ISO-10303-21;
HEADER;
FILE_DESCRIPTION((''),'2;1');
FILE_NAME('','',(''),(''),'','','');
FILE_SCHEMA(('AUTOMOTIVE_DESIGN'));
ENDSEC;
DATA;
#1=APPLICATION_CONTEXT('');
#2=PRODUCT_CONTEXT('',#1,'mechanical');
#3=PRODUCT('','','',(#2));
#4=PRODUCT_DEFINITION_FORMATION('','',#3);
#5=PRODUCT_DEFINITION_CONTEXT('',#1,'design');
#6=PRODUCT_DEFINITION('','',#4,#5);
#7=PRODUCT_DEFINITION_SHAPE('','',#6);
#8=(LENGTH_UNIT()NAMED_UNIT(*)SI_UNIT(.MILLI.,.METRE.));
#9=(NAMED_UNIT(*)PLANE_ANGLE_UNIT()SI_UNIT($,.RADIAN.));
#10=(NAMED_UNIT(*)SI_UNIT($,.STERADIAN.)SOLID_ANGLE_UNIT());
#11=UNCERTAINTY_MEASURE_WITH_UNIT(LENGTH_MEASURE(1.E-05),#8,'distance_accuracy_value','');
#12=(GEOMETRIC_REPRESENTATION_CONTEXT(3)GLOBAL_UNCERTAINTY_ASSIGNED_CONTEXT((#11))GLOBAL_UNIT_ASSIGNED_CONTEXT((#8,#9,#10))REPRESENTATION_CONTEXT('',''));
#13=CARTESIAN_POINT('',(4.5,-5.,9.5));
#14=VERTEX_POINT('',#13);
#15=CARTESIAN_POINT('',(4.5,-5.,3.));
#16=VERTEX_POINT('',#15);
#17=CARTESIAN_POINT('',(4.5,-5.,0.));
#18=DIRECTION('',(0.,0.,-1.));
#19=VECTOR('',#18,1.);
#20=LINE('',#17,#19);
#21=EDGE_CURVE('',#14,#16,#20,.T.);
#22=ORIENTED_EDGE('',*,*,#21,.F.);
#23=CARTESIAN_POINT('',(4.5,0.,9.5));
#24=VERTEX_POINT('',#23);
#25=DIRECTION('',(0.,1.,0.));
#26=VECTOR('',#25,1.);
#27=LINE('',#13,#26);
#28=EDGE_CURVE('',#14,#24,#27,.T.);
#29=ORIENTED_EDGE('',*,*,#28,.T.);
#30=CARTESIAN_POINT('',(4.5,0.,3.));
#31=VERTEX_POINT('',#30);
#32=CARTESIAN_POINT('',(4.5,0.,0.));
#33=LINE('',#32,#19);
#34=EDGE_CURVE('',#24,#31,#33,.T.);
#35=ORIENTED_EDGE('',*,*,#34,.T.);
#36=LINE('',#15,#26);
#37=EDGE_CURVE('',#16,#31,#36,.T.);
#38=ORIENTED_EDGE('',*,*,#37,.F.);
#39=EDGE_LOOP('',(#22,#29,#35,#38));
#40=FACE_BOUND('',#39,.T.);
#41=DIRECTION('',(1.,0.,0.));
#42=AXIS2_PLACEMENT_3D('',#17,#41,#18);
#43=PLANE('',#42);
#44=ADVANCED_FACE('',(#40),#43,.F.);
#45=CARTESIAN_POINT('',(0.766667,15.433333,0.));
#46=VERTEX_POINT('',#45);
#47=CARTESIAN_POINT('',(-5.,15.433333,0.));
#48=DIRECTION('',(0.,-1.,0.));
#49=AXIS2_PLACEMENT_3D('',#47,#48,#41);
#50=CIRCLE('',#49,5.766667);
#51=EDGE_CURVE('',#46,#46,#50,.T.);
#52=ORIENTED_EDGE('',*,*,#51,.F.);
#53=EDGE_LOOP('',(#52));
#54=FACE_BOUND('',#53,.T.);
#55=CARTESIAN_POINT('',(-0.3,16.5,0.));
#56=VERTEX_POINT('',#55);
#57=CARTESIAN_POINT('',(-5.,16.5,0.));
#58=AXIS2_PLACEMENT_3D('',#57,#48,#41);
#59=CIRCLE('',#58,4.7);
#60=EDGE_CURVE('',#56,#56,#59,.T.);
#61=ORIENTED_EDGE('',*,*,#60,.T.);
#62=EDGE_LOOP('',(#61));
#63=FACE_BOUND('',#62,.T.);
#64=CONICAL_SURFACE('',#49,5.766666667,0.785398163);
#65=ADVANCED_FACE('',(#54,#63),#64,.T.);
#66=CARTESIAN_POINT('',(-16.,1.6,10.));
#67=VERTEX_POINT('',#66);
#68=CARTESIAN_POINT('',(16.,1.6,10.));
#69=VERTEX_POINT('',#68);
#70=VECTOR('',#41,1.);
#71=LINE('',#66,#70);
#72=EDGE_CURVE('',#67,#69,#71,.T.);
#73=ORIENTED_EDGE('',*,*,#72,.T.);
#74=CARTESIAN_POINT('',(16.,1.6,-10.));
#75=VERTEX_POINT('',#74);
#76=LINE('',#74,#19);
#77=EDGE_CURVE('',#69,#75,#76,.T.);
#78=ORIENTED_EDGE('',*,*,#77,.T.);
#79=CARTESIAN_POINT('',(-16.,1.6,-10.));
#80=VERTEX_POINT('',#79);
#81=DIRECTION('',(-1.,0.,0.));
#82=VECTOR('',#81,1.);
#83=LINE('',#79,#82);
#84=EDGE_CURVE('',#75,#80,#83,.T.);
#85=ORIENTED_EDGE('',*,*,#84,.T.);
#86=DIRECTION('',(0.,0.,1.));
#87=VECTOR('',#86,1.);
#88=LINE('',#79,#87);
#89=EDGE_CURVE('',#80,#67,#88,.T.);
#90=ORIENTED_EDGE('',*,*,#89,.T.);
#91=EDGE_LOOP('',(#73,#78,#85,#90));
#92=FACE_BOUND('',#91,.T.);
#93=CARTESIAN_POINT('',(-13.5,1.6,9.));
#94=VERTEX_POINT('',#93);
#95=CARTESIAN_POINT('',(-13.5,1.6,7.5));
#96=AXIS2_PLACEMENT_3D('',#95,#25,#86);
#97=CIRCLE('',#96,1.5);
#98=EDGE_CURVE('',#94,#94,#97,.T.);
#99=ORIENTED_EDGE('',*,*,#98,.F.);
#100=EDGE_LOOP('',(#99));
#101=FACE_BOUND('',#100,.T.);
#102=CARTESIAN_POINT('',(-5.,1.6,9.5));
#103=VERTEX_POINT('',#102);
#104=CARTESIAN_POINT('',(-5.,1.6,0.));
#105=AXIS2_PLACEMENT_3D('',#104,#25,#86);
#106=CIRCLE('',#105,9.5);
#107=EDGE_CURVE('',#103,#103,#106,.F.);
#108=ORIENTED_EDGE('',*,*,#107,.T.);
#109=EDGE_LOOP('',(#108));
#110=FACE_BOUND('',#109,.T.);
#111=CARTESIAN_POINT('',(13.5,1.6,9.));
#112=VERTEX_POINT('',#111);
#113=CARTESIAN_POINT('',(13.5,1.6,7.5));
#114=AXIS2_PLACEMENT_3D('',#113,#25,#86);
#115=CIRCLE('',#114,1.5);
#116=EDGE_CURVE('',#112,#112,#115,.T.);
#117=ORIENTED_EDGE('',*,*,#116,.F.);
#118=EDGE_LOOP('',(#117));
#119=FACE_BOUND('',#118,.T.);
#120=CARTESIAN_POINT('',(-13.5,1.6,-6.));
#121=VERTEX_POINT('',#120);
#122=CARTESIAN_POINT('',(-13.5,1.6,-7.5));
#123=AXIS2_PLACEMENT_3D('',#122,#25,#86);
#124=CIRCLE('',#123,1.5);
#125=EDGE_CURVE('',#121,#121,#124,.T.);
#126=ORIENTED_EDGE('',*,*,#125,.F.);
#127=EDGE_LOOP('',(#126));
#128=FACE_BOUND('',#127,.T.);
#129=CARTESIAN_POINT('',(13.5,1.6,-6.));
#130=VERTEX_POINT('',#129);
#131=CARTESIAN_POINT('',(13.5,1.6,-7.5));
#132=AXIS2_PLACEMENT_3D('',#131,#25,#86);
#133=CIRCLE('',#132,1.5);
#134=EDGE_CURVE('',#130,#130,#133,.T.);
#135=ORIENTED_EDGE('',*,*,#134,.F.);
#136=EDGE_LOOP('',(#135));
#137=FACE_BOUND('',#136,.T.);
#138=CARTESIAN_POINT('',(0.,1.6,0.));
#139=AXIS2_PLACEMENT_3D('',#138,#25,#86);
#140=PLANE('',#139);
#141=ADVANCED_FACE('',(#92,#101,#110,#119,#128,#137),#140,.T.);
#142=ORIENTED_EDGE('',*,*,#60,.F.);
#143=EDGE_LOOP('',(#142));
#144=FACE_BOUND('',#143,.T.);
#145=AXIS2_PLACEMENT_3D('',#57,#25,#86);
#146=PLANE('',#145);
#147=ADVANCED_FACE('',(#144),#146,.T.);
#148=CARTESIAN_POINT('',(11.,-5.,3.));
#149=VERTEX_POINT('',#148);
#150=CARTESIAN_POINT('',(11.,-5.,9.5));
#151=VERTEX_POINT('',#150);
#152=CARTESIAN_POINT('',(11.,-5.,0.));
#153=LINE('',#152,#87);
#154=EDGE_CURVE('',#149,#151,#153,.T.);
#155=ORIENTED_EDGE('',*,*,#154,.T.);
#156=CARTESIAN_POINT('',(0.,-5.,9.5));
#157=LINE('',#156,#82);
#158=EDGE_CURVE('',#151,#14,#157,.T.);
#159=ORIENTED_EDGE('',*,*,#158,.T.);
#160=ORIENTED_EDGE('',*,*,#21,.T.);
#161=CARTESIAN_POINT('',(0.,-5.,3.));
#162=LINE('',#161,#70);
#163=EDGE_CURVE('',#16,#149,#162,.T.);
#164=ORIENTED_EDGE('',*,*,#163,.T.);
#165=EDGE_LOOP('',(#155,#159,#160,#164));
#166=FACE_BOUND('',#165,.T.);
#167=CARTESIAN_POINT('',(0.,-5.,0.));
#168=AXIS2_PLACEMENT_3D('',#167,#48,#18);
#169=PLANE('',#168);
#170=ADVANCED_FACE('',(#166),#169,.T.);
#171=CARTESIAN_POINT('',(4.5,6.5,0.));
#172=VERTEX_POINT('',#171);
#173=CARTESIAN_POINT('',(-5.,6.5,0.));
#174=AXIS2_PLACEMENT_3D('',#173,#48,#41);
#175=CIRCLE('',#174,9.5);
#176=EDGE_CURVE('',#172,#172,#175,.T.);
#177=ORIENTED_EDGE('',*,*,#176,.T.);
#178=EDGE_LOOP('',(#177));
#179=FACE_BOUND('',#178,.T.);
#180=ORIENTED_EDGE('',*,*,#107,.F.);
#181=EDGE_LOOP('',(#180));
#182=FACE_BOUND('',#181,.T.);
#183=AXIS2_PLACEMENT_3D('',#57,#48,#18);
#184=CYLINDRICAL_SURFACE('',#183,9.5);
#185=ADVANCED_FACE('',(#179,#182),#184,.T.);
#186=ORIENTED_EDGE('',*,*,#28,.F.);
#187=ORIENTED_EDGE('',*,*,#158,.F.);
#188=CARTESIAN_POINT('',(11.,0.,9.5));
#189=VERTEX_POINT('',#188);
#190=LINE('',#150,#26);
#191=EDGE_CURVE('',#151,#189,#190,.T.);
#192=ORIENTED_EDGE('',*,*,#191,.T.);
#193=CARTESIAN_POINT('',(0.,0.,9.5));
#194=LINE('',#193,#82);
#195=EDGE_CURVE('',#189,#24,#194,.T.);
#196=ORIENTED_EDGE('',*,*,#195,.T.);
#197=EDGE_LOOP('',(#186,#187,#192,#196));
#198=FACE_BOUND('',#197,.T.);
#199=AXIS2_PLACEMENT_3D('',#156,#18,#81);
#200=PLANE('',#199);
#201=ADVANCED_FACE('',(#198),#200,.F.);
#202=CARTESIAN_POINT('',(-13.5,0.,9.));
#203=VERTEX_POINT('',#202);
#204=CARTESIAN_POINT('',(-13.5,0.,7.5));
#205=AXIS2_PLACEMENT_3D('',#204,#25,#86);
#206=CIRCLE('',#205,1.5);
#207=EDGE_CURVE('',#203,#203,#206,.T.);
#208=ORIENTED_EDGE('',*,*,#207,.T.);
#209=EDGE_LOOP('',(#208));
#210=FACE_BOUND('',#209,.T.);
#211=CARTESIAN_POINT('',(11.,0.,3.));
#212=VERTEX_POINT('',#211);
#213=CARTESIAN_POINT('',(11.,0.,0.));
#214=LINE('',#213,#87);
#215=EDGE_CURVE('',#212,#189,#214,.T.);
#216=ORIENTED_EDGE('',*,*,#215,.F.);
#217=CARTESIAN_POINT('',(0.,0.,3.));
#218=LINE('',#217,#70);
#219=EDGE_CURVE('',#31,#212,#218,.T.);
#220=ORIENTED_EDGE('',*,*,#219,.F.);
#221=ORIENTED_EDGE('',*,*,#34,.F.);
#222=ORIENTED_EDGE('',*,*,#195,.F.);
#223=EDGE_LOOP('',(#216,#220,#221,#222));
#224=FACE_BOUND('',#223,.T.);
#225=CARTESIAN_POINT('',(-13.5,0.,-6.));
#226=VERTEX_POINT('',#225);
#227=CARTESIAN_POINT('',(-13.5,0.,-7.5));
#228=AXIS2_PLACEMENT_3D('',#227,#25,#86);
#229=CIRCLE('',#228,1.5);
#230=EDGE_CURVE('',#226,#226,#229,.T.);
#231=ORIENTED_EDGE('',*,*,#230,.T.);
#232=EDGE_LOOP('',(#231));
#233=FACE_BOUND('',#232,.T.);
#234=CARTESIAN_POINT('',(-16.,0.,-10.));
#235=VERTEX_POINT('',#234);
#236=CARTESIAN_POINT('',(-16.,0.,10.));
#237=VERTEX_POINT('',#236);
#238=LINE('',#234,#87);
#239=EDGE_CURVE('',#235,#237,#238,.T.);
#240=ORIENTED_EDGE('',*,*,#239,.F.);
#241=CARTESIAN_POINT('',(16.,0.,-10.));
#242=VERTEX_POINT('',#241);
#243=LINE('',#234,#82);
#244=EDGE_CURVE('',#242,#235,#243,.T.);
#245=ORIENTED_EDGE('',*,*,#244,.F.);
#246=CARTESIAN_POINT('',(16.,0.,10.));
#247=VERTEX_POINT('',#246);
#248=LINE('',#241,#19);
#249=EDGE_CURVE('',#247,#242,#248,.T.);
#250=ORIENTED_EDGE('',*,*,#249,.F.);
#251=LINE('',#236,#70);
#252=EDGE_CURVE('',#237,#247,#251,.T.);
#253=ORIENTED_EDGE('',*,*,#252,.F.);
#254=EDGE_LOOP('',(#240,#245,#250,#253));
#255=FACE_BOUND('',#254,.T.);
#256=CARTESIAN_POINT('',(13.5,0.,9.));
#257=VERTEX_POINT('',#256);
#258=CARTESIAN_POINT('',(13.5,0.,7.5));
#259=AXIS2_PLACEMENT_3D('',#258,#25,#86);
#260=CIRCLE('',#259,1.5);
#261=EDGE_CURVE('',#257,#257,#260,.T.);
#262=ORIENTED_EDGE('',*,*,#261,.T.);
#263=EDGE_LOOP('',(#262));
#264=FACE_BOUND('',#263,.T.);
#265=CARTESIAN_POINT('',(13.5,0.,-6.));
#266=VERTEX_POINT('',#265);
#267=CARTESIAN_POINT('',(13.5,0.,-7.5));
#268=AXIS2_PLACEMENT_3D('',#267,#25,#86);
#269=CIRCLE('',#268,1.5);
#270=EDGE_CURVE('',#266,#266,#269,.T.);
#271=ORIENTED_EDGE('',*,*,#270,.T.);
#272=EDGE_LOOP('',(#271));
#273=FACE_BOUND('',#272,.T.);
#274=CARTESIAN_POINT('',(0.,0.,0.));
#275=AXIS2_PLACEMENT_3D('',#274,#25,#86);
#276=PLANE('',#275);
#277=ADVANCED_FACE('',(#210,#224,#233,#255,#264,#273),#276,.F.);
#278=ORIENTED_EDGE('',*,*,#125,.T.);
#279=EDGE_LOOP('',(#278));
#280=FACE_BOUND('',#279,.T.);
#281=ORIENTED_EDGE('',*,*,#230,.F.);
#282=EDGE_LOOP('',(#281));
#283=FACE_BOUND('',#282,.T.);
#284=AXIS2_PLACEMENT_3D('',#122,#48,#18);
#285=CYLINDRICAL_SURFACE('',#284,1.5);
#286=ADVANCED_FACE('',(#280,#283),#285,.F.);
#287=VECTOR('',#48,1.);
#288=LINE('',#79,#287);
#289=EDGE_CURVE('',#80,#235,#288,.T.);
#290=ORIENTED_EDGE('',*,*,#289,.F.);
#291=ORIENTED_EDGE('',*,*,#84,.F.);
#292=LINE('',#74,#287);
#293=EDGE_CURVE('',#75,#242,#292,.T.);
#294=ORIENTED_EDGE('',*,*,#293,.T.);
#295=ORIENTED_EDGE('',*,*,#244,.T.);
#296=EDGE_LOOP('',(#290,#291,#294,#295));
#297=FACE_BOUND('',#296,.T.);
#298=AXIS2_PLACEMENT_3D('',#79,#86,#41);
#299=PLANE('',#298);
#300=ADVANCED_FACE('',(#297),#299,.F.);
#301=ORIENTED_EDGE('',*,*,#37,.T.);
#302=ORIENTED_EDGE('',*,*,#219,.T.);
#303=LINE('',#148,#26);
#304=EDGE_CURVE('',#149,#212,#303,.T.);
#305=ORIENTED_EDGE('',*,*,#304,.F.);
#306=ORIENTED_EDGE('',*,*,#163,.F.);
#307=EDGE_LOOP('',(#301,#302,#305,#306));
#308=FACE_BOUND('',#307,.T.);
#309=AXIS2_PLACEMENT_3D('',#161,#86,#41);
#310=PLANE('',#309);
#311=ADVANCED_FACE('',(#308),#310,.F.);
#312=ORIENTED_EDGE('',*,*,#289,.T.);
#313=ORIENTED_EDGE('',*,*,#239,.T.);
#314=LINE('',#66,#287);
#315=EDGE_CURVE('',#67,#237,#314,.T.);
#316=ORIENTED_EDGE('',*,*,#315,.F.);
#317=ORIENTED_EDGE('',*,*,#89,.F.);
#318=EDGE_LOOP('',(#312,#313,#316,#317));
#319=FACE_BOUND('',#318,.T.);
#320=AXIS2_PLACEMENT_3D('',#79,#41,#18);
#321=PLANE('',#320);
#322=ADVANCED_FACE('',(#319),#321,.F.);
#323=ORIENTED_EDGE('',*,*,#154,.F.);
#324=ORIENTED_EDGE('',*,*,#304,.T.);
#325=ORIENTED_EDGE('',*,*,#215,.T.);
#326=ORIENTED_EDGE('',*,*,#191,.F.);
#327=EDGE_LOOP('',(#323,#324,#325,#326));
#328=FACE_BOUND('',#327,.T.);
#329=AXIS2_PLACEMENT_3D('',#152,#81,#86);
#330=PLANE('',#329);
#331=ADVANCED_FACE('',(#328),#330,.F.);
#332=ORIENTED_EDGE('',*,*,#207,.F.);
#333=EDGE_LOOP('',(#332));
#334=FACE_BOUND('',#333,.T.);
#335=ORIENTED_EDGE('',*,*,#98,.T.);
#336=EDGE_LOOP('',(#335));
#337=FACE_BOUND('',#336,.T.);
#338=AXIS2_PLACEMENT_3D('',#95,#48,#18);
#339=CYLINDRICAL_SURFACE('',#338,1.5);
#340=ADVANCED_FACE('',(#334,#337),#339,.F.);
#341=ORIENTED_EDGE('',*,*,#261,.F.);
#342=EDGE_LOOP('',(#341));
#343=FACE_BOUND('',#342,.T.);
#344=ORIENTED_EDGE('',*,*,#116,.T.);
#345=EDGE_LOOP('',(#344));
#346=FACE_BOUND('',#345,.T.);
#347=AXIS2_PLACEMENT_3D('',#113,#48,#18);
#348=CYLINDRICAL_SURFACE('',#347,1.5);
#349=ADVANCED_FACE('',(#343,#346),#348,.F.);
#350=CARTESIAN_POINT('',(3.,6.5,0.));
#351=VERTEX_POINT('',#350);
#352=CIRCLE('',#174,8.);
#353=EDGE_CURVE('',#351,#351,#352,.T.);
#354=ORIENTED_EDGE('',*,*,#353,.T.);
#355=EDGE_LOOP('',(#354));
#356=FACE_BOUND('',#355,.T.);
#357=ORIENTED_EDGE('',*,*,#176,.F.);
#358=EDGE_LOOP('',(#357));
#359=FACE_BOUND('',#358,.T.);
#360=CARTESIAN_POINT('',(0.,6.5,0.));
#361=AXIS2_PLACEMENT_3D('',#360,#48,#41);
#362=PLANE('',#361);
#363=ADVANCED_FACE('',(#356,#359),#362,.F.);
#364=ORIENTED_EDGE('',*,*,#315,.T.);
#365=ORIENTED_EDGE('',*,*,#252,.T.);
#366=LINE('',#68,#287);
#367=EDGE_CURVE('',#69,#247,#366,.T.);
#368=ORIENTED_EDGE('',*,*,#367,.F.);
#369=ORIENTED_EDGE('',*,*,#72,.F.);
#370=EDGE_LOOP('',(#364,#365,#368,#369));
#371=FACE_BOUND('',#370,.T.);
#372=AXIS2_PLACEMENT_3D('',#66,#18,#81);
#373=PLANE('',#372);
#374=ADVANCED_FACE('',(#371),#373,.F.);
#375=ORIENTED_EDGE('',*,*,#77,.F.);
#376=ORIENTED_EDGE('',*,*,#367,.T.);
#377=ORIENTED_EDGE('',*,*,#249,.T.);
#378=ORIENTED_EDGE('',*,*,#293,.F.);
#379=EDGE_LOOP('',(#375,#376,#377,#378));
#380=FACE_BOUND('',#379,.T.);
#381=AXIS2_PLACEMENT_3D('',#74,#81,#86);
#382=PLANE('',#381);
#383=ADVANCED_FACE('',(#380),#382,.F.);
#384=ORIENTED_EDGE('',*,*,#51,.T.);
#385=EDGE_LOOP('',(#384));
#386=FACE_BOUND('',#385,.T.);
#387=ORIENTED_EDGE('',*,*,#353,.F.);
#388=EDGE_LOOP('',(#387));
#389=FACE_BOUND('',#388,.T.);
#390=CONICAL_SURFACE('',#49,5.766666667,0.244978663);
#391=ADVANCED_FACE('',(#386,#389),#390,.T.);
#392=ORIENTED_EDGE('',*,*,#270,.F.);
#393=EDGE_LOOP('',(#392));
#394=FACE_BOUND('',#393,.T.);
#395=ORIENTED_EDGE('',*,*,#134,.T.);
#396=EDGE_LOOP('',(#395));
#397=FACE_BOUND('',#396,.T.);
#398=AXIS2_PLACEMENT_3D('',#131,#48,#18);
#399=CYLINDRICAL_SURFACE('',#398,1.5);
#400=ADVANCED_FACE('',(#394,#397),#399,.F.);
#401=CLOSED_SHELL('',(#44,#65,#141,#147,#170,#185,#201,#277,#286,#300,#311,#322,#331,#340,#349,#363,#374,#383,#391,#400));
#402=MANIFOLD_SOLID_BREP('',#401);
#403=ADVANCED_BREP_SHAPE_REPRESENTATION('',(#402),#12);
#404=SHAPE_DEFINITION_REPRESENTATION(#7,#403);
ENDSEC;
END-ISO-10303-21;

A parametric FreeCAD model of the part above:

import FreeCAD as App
import Part
import Sketcher

V = App.Vector
Q = App.Units.Quantity


def add_polygon(sketch, points):
    """Adds a closed chain of lines whose ends are joined by coincident constraints."""
    first, n = sketch.GeometryCount, len(points)
    for a, b in zip(points, points[1:] + points[:1]):
        sketch.addGeometry(Part.LineSegment(App.Vector(*a, 0), App.Vector(*b, 0)), False)
    for i in range(n):
        sketch.addConstraint(Sketcher.Constraint("Coincident", first + i, 2, first + (i + 1) % n, 1))

doc = App.newDocument("Part")
params = doc.addObject("Spreadsheet::Sheet", "Params")
for row, (alias, value) in enumerate([
    ("sketch1_diameter", "3 mm"),
    ("sketch1_width", "32 mm"),
    ("sketch1_height", "20 mm"),
    ("pad1_length", "1.6 mm"),
    ("sketch2_width", "6.5 mm"),
    ("pad2_length", "5 mm"),
    ("sketch3_diameter", "19 mm"),
    ("pad3_length", "16.5 mm"),
    ("sketch4_height", "10 mm"),
    ("sketch4_width", "4.8 mm"),
    ("sketch4_width2", "1.5 mm"),
    ("groove_angle", "360 deg"),
], start=1):
    params.set(f"A{row}", alias)
    params.set(f"B{row}", "=" + value)
    params.setAlias(f"B{row}", alias)

body = doc.addObject("PartDesign::Body", "Body")

sketch1 = body.newObject("Sketcher::SketchObject", "Sketch")
sketch1.AttachmentSupport = (doc.getObject("XZ_Plane"), [""])
sketch1.MapMode = "FlatFace"
add_polygon(sketch1, [(-16, -10), (-16, 10), (16, 10), (16, -10)])
sketch1.addGeometry(Part.Circle(V(-13.5, 7.5, 0), V(0, 0, 1), 1.5), False)
sketch1.addGeometry(Part.Circle(V(13.5, 7.5, 0), V(0, 0, 1), 1.5), False)
sketch1.addGeometry(Part.Circle(V(-13.5, -7.5, 0), V(0, 0, 1), 1.5), False)
sketch1.addGeometry(Part.Circle(V(13.5, -7.5, 0), V(0, 0, 1), 1.5), False)
sketch1.addConstraint(Sketcher.Constraint("Vertical", 0))
sketch1.addConstraint(Sketcher.Constraint("Horizontal", 1))
sketch1.addConstraint(Sketcher.Constraint("Vertical", 2))
sketch1.addConstraint(Sketcher.Constraint("Horizontal", 3))
sketch1.addConstraint(Sketcher.Constraint("Equal", 4, 5))
sketch1.addConstraint(Sketcher.Constraint("Equal", 5, 6))
sketch1.addConstraint(Sketcher.Constraint("Equal", 6, 7))
sketch1.addConstraint(Sketcher.Constraint("Symmetric", 5, 3, 6, 3, -1, 1))
sketch1.addConstraint(Sketcher.Constraint("Symmetric", 4, 3, 7, 3, -1, 1))
sketch1.addConstraint(Sketcher.Constraint("Symmetric", 0, 2, 2, 2, -1, 1))
sketch1.addConstraint(Sketcher.Constraint("Symmetric", 4, 3, 5, 3, -2))
sketch1.addConstraint(Sketcher.Constraint("Diameter", 4, Q("3 mm")))
sketch1.addConstraint(Sketcher.Constraint("DistanceX", 1, 1, 1, 2, Q("32 mm")))
sketch1.addConstraint(Sketcher.Constraint("DistanceY", 0, 1, 0, 2, Q("20 mm")))
sketch1.addConstraint(Sketcher.Constraint("DistanceX", 4, 3, 5, 3, Q("27 mm")))
sketch1.addConstraint(Sketcher.Constraint("DistanceY", 6, 3, 4, 3, Q("15 mm")))
sketch1.setExpression("Constraints[15]", "Params.sketch1_diameter")
sketch1.setExpression("Constraints[16]", "Params.sketch1_width")
sketch1.setExpression("Constraints[17]", "Params.sketch1_height")
pad1 = body.newObject("PartDesign::Pad", "Pad")
pad1.Profile = sketch1
pad1.setExpression("Length", "Params.pad1_length")
pad1.Reversed = True

sketch2 = body.newObject("Sketcher::SketchObject", "Sketch001")
sketch2.AttachmentSupport = (doc.getObject("XZ_Plane"), [""])
sketch2.MapMode = "FlatFace"
add_polygon(sketch2, [(4, 3), (4, 10), (11, 10), (11, 3)])
sketch2.addConstraint(Sketcher.Constraint("Vertical", 0))
sketch2.addConstraint(Sketcher.Constraint("Horizontal", 1))
sketch2.addConstraint(Sketcher.Constraint("Vertical", 2))
sketch2.addConstraint(Sketcher.Constraint("Horizontal", 3))
sketch2.addConstraint(Sketcher.Constraint("Equal", 3, 0))
sketch2.addConstraint(Sketcher.Constraint("DistanceX", 1, 1, 1, 2, Q("6.5 mm")))
sketch2.addConstraint(Sketcher.Constraint("DistanceX", -1, 1, 1, 2, Q("11 mm")))
sketch2.addConstraint(Sketcher.Constraint("DistanceY", -1, 1, 2, 2, Q("3 mm")))
sketch2.setExpression("Constraints[9]", "Params.sketch2_width")
pad2 = body.newObject("PartDesign::Pad", "Pad001")
pad2.Profile = sketch2
pad2.setExpression("Length", "Params.pad2_length")

sketch3 = body.newObject("Sketcher::SketchObject", "Sketch002")
sketch3.AttachmentSupport = (doc.getObject("XZ_Plane"), [""])
sketch3.MapMode = "FlatFace"
sketch3.addGeometry(Part.Circle(V(-5, 0, 0), V(0, 0, 1), 10), False)
sketch3.addConstraint(Sketcher.Constraint("PointOnObject", 0, 3, -1))
sketch3.addConstraint(Sketcher.Constraint("Diameter", 0, Q("19 mm")))
sketch3.addConstraint(Sketcher.Constraint("DistanceX", 0, 3, -1, 1, Q("5 mm")))
sketch3.setExpression("Constraints[1]", "Params.sketch3_diameter")
pad3 = body.newObject("PartDesign::Pad", "Pad002")
pad3.Profile = sketch3
pad3.setExpression("Length", "Params.pad3_length")
pad3.Reversed = True

sketch4 = body.newObject("Sketcher::SketchObject", "Sketch003")
sketch4.AttachmentSupport = (doc.getObject("XY_Plane"), [""])
sketch4.MapMode = "FlatFace"
add_polygon(sketch4, [(4.5, 16.5), (-0.3, 16.5), (0.8, 15.4), (3, 6.5), (4.5, 6.5)])
sketch4.addGeometry(Part.LineSegment(V(-5, 6.5, 0), V(-5, 16.5, 0)), True)
sketch4.addConstraint(Sketcher.Constraint("Horizontal", 0))
sketch4.addConstraint(Sketcher.Constraint("Horizontal", 3))
sketch4.addConstraint(Sketcher.Constraint("Vertical", 4))
sketch4.addConstraint(Sketcher.Constraint("Vertical", 5))
sketch4.addConstraint(Sketcher.Constraint("Horizontal", 3, 2, 5, 1))
sketch4.addConstraint(Sketcher.Constraint("Horizontal", 4, 2, 5, 2))
sketch4.addConstraint(Sketcher.Constraint("DistanceY", 4, 1, 4, 2, Q("10 mm")))
sketch4.addConstraint(Sketcher.Constraint("Angle", 1, Q("-45 deg")))
sketch4.addConstraint(Sketcher.Constraint("DistanceX", 0, 2, 0, 1, Q("4.8 mm")))
sketch4.addConstraint(Sketcher.Constraint("DistanceX", 3, 1, 3, 2, Q("1.5 mm")))
sketch4.addConstraint(Sketcher.Constraint("DistanceX", -1, 1, 2, 2, Q("3 mm")))
sketch4.addConstraint(Sketcher.Constraint("DistanceX", 5, 1, -1, 1, Q("5 mm")))
sketch4.addConstraint(Sketcher.Constraint("DistanceY", -1, 1, 0, 2, Q("16.5 mm")))
sketch4.addConstraint(Sketcher.Constraint("Distance", 2, Q("9.208269 mm")))
sketch4.setExpression("Constraints[11]", "Params.sketch4_height")
sketch4.setExpression("Constraints[13]", "Params.sketch4_width")
sketch4.setExpression("Constraints[14]", "Params.sketch4_width2")
groove = body.newObject("PartDesign::Groove", "Groove")
groove.Profile = sketch4
groove.ReferenceAxis = (sketch4, ["Axis0"])
groove.setExpression("Angle", "Params.groove_angle")

doc.recompute()
